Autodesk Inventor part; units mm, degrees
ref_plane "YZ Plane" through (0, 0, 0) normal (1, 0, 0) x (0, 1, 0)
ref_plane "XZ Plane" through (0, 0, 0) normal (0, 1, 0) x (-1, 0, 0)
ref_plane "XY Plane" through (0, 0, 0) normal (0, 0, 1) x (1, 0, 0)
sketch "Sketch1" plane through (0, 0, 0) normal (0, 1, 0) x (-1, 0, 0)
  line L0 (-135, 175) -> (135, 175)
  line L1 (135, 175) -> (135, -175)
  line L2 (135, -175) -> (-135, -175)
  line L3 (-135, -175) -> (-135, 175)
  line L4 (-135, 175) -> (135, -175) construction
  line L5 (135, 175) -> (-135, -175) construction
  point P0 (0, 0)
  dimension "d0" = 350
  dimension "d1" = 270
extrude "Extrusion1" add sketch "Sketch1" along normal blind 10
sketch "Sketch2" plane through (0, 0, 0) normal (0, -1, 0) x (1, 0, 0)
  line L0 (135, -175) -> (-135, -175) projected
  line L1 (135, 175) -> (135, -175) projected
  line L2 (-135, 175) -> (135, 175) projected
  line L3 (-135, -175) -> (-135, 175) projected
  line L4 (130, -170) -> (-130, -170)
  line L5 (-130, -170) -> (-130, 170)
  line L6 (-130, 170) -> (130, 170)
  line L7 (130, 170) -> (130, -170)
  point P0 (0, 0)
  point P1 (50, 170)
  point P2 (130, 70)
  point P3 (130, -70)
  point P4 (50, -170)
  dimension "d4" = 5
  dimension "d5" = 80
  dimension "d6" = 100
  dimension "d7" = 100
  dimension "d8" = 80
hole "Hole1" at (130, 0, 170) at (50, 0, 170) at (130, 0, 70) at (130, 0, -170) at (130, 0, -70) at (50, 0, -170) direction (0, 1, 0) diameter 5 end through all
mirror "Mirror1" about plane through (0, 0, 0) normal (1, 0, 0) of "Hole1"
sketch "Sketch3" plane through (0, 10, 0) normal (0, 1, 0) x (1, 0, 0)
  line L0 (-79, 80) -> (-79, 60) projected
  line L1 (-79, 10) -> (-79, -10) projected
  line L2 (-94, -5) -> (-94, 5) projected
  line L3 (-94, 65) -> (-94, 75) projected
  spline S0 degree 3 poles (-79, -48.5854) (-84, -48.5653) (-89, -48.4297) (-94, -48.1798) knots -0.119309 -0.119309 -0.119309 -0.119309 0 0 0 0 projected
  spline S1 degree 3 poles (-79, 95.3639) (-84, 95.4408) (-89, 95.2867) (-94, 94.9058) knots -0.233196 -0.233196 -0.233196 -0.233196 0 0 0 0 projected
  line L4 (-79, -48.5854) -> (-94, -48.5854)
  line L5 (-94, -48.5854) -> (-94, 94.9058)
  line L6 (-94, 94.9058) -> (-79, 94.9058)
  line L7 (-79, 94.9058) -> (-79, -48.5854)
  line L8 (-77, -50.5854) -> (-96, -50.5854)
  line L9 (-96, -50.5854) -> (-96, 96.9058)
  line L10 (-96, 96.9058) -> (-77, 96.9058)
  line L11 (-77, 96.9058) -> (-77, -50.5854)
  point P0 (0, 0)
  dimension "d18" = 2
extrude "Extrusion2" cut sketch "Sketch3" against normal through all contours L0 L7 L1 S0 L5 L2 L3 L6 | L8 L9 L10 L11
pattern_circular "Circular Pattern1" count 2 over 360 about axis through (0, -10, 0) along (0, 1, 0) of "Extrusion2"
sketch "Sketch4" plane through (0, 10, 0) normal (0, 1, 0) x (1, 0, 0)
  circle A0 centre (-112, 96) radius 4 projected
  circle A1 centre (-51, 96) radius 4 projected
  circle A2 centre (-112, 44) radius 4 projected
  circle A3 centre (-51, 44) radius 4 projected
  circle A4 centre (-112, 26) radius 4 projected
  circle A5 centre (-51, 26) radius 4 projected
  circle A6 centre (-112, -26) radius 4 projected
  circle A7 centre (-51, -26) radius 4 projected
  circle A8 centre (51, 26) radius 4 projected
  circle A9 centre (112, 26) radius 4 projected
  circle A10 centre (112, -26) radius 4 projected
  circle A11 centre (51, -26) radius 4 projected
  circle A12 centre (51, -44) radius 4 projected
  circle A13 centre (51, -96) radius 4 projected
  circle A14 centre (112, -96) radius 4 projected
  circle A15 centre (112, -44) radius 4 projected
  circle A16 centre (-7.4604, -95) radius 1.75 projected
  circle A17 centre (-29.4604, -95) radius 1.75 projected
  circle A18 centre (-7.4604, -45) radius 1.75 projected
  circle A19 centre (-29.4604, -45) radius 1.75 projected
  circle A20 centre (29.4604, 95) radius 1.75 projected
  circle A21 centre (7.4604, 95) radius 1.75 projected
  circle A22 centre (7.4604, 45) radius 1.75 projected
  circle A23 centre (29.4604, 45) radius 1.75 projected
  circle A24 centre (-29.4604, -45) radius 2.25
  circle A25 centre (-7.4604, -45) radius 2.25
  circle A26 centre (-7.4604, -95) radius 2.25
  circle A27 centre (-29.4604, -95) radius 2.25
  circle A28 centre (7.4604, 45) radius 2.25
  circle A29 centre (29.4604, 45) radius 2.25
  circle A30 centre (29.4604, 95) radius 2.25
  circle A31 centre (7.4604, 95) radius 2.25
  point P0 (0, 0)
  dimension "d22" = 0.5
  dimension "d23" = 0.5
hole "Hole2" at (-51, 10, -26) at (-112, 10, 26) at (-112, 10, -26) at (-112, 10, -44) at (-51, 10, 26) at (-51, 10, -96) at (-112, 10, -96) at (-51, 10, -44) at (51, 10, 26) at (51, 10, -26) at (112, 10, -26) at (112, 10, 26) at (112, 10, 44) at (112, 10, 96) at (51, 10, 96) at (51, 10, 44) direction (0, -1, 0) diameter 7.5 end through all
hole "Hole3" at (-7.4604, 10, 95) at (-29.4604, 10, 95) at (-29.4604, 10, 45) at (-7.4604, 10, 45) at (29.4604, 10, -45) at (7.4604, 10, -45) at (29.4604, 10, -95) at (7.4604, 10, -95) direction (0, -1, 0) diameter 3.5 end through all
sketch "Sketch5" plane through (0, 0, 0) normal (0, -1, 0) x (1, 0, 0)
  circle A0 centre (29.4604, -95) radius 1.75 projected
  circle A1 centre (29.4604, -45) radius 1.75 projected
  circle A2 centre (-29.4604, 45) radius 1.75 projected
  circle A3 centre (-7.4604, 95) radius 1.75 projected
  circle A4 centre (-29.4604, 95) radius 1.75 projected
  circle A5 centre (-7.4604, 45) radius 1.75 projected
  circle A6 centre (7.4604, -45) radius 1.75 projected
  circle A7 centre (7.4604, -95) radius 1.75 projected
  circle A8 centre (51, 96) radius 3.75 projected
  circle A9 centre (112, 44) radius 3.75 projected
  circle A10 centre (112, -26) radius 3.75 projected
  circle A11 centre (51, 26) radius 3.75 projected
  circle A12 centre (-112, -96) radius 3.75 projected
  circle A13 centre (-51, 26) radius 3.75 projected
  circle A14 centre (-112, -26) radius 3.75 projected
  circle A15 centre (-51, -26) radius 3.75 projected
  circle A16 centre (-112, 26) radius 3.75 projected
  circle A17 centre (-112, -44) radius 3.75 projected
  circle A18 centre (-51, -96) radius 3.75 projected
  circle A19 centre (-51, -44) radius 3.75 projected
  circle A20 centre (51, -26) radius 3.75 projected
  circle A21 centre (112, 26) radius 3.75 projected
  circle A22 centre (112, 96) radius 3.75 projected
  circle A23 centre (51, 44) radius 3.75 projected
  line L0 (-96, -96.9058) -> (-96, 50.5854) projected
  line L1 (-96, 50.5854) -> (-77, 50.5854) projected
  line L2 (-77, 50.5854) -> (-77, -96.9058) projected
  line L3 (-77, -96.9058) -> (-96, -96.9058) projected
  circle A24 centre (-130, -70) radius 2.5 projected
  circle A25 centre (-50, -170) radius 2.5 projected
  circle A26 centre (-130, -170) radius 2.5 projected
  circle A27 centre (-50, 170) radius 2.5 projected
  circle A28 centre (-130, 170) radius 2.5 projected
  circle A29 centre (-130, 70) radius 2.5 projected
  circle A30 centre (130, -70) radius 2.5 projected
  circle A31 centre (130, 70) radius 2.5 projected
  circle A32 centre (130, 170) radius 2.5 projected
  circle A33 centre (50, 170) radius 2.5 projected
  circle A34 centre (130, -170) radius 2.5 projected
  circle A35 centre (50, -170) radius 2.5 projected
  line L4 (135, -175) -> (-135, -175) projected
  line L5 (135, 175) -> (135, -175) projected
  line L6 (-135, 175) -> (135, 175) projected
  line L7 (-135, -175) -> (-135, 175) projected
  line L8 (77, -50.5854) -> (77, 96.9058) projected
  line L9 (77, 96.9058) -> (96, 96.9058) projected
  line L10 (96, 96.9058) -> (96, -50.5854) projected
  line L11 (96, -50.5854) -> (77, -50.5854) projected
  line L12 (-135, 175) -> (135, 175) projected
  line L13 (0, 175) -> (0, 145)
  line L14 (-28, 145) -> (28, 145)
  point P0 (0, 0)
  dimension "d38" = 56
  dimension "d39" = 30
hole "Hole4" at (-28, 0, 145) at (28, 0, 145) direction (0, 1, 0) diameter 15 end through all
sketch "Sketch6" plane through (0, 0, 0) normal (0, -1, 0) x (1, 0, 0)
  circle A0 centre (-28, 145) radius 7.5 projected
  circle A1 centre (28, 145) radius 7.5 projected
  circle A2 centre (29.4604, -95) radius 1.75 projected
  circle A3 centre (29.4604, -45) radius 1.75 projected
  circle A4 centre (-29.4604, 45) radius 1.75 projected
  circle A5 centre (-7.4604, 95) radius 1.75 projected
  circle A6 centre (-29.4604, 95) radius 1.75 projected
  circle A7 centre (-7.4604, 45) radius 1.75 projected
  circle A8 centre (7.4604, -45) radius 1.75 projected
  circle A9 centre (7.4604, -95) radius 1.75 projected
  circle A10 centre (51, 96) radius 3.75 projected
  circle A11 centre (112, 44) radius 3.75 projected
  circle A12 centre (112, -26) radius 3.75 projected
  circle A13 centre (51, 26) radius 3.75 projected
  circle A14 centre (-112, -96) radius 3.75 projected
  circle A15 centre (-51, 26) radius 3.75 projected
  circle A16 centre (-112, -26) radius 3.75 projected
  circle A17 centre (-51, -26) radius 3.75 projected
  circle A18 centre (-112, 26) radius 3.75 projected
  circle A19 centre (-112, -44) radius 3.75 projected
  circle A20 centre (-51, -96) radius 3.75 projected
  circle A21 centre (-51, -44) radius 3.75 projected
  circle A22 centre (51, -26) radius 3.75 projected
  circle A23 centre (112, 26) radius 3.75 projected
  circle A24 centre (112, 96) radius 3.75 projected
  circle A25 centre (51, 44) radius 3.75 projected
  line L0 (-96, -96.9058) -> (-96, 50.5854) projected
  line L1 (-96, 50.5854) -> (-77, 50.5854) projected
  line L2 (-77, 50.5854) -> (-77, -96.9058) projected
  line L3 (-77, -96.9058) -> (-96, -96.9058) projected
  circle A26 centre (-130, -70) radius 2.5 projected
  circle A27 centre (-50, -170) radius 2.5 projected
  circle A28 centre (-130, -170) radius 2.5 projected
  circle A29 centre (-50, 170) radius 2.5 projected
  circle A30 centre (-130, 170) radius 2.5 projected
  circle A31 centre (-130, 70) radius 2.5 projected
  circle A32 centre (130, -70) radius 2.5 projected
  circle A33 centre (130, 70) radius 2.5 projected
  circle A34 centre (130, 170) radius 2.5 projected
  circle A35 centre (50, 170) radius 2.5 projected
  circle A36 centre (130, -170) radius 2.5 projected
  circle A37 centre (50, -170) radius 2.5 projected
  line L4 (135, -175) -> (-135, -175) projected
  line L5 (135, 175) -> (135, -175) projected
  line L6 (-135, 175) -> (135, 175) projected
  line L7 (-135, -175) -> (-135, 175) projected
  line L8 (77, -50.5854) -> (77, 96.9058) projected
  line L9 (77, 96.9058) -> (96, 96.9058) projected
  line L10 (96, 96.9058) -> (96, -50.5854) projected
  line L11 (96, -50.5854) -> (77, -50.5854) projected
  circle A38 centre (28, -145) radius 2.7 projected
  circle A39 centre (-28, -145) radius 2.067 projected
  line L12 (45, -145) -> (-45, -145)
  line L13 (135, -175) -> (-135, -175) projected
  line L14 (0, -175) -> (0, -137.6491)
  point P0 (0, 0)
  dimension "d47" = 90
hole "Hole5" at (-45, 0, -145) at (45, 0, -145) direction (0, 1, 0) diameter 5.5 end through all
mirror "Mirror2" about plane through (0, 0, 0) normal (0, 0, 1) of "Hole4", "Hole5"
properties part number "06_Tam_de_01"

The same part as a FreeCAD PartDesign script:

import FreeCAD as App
import Part
import Sketcher
Q = App.Units.Quantity


def add_polygon(sketch, points):
    """Adds a closed chain of lines whose ends are joined by coincident constraints."""
    first, n = sketch.GeometryCount, len(points)
    for a, b in zip(points, points[1:] + points[:1]):
        sketch.addGeometry(Part.LineSegment(App.Vector(*a, 0), App.Vector(*b, 0)), False)
    for i in range(n):
        sketch.addConstraint(Sketcher.Constraint("Coincident", first + i, 2, first + (i + 1) % n, 1))

doc = App.newDocument("Part")
body = doc.addObject("PartDesign::Body", "Body")
body.AllowCompound = True

# Sketch on XZ plane
sketch1 = body.newObject("Sketcher::SketchObject", "Sketch")
sketch1.AttachmentSupport = (doc.getObject("XZ_Plane"), [""])
sketch1.MapMode = "FlatFace"
add_polygon(sketch1, [(-135, 175), (135, 175), (135, -175), (-135, -175)])  # lines 0-3
sketch1.addConstraint(Sketcher.Constraint("Horizontal", 0))
sketch1.addConstraint(Sketcher.Constraint("Vertical", 1))
sketch1.addConstraint(Sketcher.Constraint("Horizontal", 2))
sketch1.addConstraint(Sketcher.Constraint("Vertical", 3))
sketch1.addConstraint(Sketcher.Constraint("Symmetric", 0, 2, 2, 2, -1, 1))
sketch1.addConstraint(Sketcher.Constraint("DistanceX", 0, 1, 0, 2, Q("270 mm")))
sketch1.addConstraint(Sketcher.Constraint("DistanceY", 1, 2, 1, 1, Q("350 mm")))
pad1 = body.newObject("PartDesign::Pad", "Pad")
pad1.Profile = sketch1
pad1.Length = 10
pad1.Reversed = True

# Sketch on XZ plane
sketch2 = body.newObject("Sketcher::SketchObject", "Sketch001")
sketch2.AttachmentSupport = (doc.getObject("XZ_Plane"), [""])
sketch2.MapMode = "FlatFace"
sketch2.addGeometry(Part.Circle(App.Vector(130, 170, 0), App.Vector(0, 0, 1), 2.5), False)
sketch2.addGeometry(Part.Circle(App.Vector(50, 170, 0), App.Vector(0, 0, 1), 2.5), False)
sketch2.addGeometry(Part.Circle(App.Vector(130, 70, 0), App.Vector(0, 0, 1), 2.5), False)
sketch2.addGeometry(Part.Circle(App.Vector(130, -170, 0), App.Vector(0, 0, 1), 2.5), False)
sketch2.addGeometry(Part.Circle(App.Vector(130, -70, 0), App.Vector(0, 0, 1), 2.5), False)
sketch2.addGeometry(Part.Circle(App.Vector(50, -170, 0), App.Vector(0, 0, 1), 2.5), False)
sketch2.addConstraint(Sketcher.Constraint("Equal", 0, 1))
sketch2.addConstraint(Sketcher.Constraint("Equal", 1, 2))
sketch2.addConstraint(Sketcher.Constraint("Equal", 2, 3))
sketch2.addConstraint(Sketcher.Constraint("Equal", 3, 4))
sketch2.addConstraint(Sketcher.Constraint("Equal", 4, 5))
sketch2.addConstraint(Sketcher.Constraint("Symmetric", 0, 3, 3, 3, -1))
sketch2.addConstraint(Sketcher.Constraint("Symmetric", 2, 3, 4, 3, -1))
sketch2.addConstraint(Sketcher.Constraint("Symmetric", 1, 3, 5, 3, -1))
sketch2.addConstraint(Sketcher.Constraint("Horizontal", 0, 3, 1, 3))
sketch2.addConstraint(Sketcher.Constraint("Vertical", 0, 3, 2, 3))
sketch2.addConstraint(Sketcher.Constraint("Diameter", 0, Q("5 mm")))
sketch2.addConstraint(Sketcher.Constraint("DistanceX", -1, 1, 0, 3, Q("130 mm")))
sketch2.addConstraint(Sketcher.Constraint("DistanceY", -1, 1, 0, 3, Q("170 mm")))
sketch2.addConstraint(Sketcher.Constraint("DistanceX", -1, 1, 1, 3, Q("50 mm")))
sketch2.addConstraint(Sketcher.Constraint("DistanceY", -1, 1, 2, 3, Q("70 mm")))
doc.recompute()
hole = body.newObject("PartDesign::Hole", "Hole")
hole.Profile = sketch2
hole.ThreadType = "None"
hole.Diameter = 5
hole.DepthType = "ThroughAll"
doc.recompute()

mirrored = body.newObject("PartDesign::Mirrored", "Mirrored")
mirrored.Originals = [hole]
mirrored.MirrorPlane = (doc.getObject("YZ_Plane"), [""])
body.Tip = mirrored

# Sketch on XZ plane
sketch3 = body.newObject("Sketcher::SketchObject", "Sketch002")
sketch3.AttachmentSupport = (doc.getObject("XZ_Plane"), [""])
sketch3.MapMode = "FlatFace"
sketch3.AttachmentOffset = App.Placement(App.Vector(0, 0, -10), App.Rotation())
add_polygon(sketch3, [(-96, 50.5854), (-77, 50.5854), (-77, -96.9058), (-96, -96.9058)])  # lines 0-3
sketch3.addGeometry(Part.BSplineCurve([App.Vector(-79, 48.5854, 0), App.Vector(-84, 48.5653, 0), App.Vector(-89, 48.4297, 0), App.Vector(-94, 48.1798, 0)], [4, 4], [-0.119309, 0], False, 3, [1, 1, 1, 1], False), False)  # 4
sketch3.addGeometry(Part.LineSegment(App.Vector(-79, 48.5854, 0), App.Vector(-94, 48.5854, 0)), False)  # 5
sketch3.addGeometry(Part.LineSegment(App.Vector(-94, 48.5854, 0), App.Vector(-94, 48.1798, 0)), False)  # 6
sketch3.addConstraint(Sketcher.Constraint("Block", 4))
sketch3.addConstraint(Sketcher.Constraint("Coincident", 4, 1, 5, 1))
sketch3.addConstraint(Sketcher.Constraint("Coincident", 5, 2, 6, 1))
sketch3.addConstraint(Sketcher.Constraint("Coincident", 6, 2, 4, 2))
sketch3.addConstraint(Sketcher.Constraint("Horizontal", 0))
sketch3.addConstraint(Sketcher.Constraint("Vertical", 1))
sketch3.addConstraint(Sketcher.Constraint("Horizontal", 2))
sketch3.addConstraint(Sketcher.Constraint("Vertical", 3))
sketch3.addConstraint(Sketcher.Constraint("Horizontal", 5))
sketch3.addConstraint(Sketcher.Constraint("Vertical", 6))
sketch3.addConstraint(Sketcher.Constraint("DistanceX", 3, 2, 5, 2, Q("2 mm")))
sketch3.addConstraint(Sketcher.Constraint("DistanceY", 5, 2, 3, 2, Q("2 mm")))
sketch3.addConstraint(Sketcher.Constraint("DistanceX", 0, 1, 0, 2, Q("19 mm")))
sketch3.addConstraint(Sketcher.Constraint("DistanceY", 1, 2, 1, 1, Q("147.4912 mm")))
pocket1 = body.newObject("PartDesign::Pocket", "Pocket")
pocket1.Profile = sketch3
pocket1.Type = "ThroughAll"
pocket1.Reversed = True
doc.recompute()

polarpattern = body.newObject("PartDesign::PolarPattern", "PolarPattern")
polarpattern.Originals = [pocket1]
polarpattern.Axis = (doc.getObject("Y_Axis"), [""])
polarpattern.Angle = 360
polarpattern.Occurrences = 2
body.Tip = polarpattern

# Sketch on XZ plane
sketch4 = body.newObject("Sketcher::SketchObject", "Sketch003")
sketch4.AttachmentSupport = (doc.getObject("XZ_Plane"), [""])
sketch4.MapMode = "FlatFace"
sketch4.AttachmentOffset = App.Placement(App.Vector(0, 0, -10), App.Rotation())
sketch4.addGeometry(Part.Circle(App.Vector(-51, -26, 0), App.Vector(0, 0, 1), 3.8), False)
sketch4.addGeometry(Part.Circle(App.Vector(-112, 26, 0), App.Vector(0, 0, 1), 3.8), False)
sketch4.addGeometry(Part.Circle(App.Vector(-112, -26, 0), App.Vector(0, 0, 1), 3.8), False)
sketch4.addGeometry(Part.Circle(App.Vector(-112, -44, 0), App.Vector(0, 0, 1), 3.8), False)
sketch4.addGeometry(Part.Circle(App.Vector(-51, 26, 0), App.Vector(0, 0, 1), 3.8), False)
sketch4.addGeometry(Part.Circle(App.Vector(-51, -96, 0), App.Vector(0, 0, 1), 3.8), False)
sketch4.addGeometry(Part.Circle(App.Vector(-112, -96, 0), App.Vector(0, 0, 1), 3.8), False)
sketch4.addGeometry(Part.Circle(App.Vector(-51, -44, 0), App.Vector(0, 0, 1), 3.8), False)
sketch4.addGeometry(Part.Circle(App.Vector(51, 26, 0), App.Vector(0, 0, 1), 3.8), False)
sketch4.addGeometry(Part.Circle(App.Vector(51, -26, 0), App.Vector(0, 0, 1), 3.8), False)
sketch4.addGeometry(Part.Circle(App.Vector(112, -26, 0), App.Vector(0, 0, 1), 3.8), False)
sketch4.addGeometry(Part.Circle(App.Vector(112, 26, 0), App.Vector(0, 0, 1), 3.8), False)
sketch4.addGeometry(Part.Circle(App.Vector(112, 44, 0), App.Vector(0, 0, 1), 3.8), False)
sketch4.addGeometry(Part.Circle(App.Vector(112, 96, 0), App.Vector(0, 0, 1), 3.8), False)
sketch4.addGeometry(Part.Circle(App.Vector(51, 96, 0), App.Vector(0, 0, 1), 3.8), False)
sketch4.addGeometry(Part.Circle(App.Vector(51, 44, 0), App.Vector(0, 0, 1), 3.8), False)
sketch4.addConstraint(Sketcher.Constraint("Equal", 0, 1))
sketch4.addConstraint(Sketcher.Constraint("Equal", 1, 2))
sketch4.addConstraint(Sketcher.Constraint("Equal", 2, 3))
sketch4.addConstraint(Sketcher.Constraint("Equal", 3, 4))
sketch4.addConstraint(Sketcher.Constraint("Equal", 4, 5))
sketch4.addConstraint(Sketcher.Constraint("Equal", 5, 6))
sketch4.addConstraint(Sketcher.Constraint("Equal", 6, 7))
sketch4.addConstraint(Sketcher.Constraint("Equal", 7, 8))
sketch4.addConstraint(Sketcher.Constraint("Equal", 8, 9))
sketch4.addConstraint(Sketcher.Constraint("Equal", 9, 10))
sketch4.addConstraint(Sketcher.Constraint("Equal", 10, 11))
sketch4.addConstraint(Sketcher.Constraint("Equal", 11, 12))
sketch4.addConstraint(Sketcher.Constraint("Equal", 12, 13))
sketch4.addConstraint(Sketcher.Constraint("Equal", 13, 14))
sketch4.addConstraint(Sketcher.Constraint("Equal", 14, 15))
sketch4.addConstraint(Sketcher.Constraint("Symmetric", 0, 3, 8, 3, -1, 1))
sketch4.addConstraint(Sketcher.Constraint("Symmetric", 4, 3, 9, 3, -1, 1))
sketch4.addConstraint(Sketcher.Constraint("Symmetric", 1, 3, 10, 3, -1, 1))
sketch4.addConstraint(Sketcher.Constraint("Symmetric", 2, 3, 11, 3, -1, 1))
sketch4.addConstraint(Sketcher.Constraint("Symmetric", 3, 3, 12, 3, -1, 1))
sketch4.addConstraint(Sketcher.Constraint("Symmetric", 6, 3, 13, 3, -1, 1))
sketch4.addConstraint(Sketcher.Constraint("Symmetric", 5, 3, 14, 3, -1, 1))
sketch4.addConstraint(Sketcher.Constraint("Symmetric", 7, 3, 15, 3, -1, 1))
sketch4.addConstraint(Sketcher.Constraint("Symmetric", 4, 3, 8, 3, -2))
sketch4.addConstraint(Sketcher.Constraint("Symmetric", 2, 3, 10, 3, -2))
sketch4.addConstraint(Sketcher.Constraint("Horizontal", 0, 3, 2, 3))
sketch4.addConstraint(Sketcher.Constraint("Horizontal", 5, 3, 6, 3))
sketch4.addConstraint(Sketcher.Constraint("Horizontal", 3, 3, 7, 3))
sketch4.addConstraint(Sketcher.Constraint("Vertical", 2, 3, 3, 3))
sketch4.addConstraint(Sketcher.Constraint("Vertical", 4, 3, 5, 3))
sketch4.addConstraint(Sketcher.Constraint("Vertical", 3, 3, 6, 3))
sketch4.addConstraint(Sketcher.Constraint("Vertical", 5, 3, 7, 3))
sketch4.addConstraint(Sketcher.Constraint("Diameter", 0, Q("7.5 mm")))
sketch4.addConstraint(Sketcher.Constraint("DistanceX", 0, 3, -1, 1, Q("51 mm")))
sketch4.addConstraint(Sketcher.Constraint("DistanceY", 0, 3, -1, 1, Q("26 mm")))
sketch4.addConstraint(Sketcher.Constraint("DistanceX", 1, 3, -1, 1, Q("112 mm")))
sketch4.addConstraint(Sketcher.Constraint("DistanceY", 3, 3, -1, 1, Q("44 mm")))
sketch4.addConstraint(Sketcher.Constraint("DistanceY", 5, 3, -1, 1, Q("96 mm")))
doc.recompute()
hole2 = body.newObject("PartDesign::Hole", "Hole001")
hole2.Profile = sketch4
hole2.ThreadType = "None"
hole2.Diameter = 7.5
hole2.DepthType = "ThroughAll"
hole2.Reversed = True

# Sketch on XZ plane
sketch5 = body.newObject("Sketcher::SketchObject", "Sketch004")
sketch5.AttachmentSupport = (doc.getObject("XZ_Plane"), [""])
sketch5.MapMode = "FlatFace"
sketch5.AttachmentOffset = App.Placement(App.Vector(0, 0, -10), App.Rotation())
sketch5.addGeometry(Part.Circle(App.Vector(-7.5, 95, 0), App.Vector(0, 0, 1), 1.8), False)
sketch5.addGeometry(Part.Circle(App.Vector(-29.5, 95, 0), App.Vector(0, 0, 1), 1.8), False)
sketch5.addGeometry(Part.Circle(App.Vector(-29.5, 45, 0), App.Vector(0, 0, 1), 1.8), False)
sketch5.addGeometry(Part.Circle(App.Vector(-7.5, 45, 0), App.Vector(0, 0, 1), 1.8), False)
sketch5.addGeometry(Part.Circle(App.Vector(29.5, -45, 0), App.Vector(0, 0, 1), 1.8), False)
sketch5.addGeometry(Part.Circle(App.Vector(7.5, -45, 0), App.Vector(0, 0, 1), 1.8), False)
sketch5.addGeometry(Part.Circle(App.Vector(29.5, -95, 0), App.Vector(0, 0, 1), 1.8), False)
sketch5.addGeometry(Part.Circle(App.Vector(7.5, -95, 0), App.Vector(0, 0, 1), 1.8), False)
sketch5.addConstraint(Sketcher.Constraint("Equal", 0, 1))
sketch5.addConstraint(Sketcher.Constraint("Equal", 1, 2))
sketch5.addConstraint(Sketcher.Constraint("Equal", 2, 3))
sketch5.addConstraint(Sketcher.Constraint("Equal", 3, 4))
sketch5.addConstraint(Sketcher.Constraint("Equal", 4, 5))
sketch5.addConstraint(Sketcher.Constraint("Equal", 5, 6))
sketch5.addConstraint(Sketcher.Constraint("Equal", 6, 7))
sketch5.addConstraint(Sketcher.Constraint("Symmetric", 2, 3, 4, 3, -1, 1))
sketch5.addConstraint(Sketcher.Constraint("Symmetric", 3, 3, 5, 3, -1, 1))
sketch5.addConstraint(Sketcher.Constraint("Symmetric", 1, 3, 6, 3, -1, 1))
sketch5.addConstraint(Sketcher.Constraint("Symmetric", 0, 3, 7, 3, -1, 1))
sketch5.addConstraint(Sketcher.Constraint("Horizontal", 0, 3, 1, 3))
sketch5.addConstraint(Sketcher.Constraint("Horizontal", 2, 3, 3, 3))
sketch5.addConstraint(Sketcher.Constraint("Vertical", 1, 3, 2, 3))
sketch5.addConstraint(Sketcher.Constraint("Vertical", 0, 3, 3, 3))
sketch5.addConstraint(Sketcher.Constraint("Diameter", 0, Q("3.5 mm")))
sketch5.addConstraint(Sketcher.Constraint("DistanceY", -1, 1, 0, 3, Q("95 mm")))
sketch5.addConstraint(Sketcher.Constraint("DistanceY", -1, 1, 2, 3, Q("45 mm")))
sketch5.addConstraint(Sketcher.Constraint("DistanceX", 1, 3, 0, 3, Q("22 mm")))
sketch5.addConstraint(Sketcher.Constraint("DistanceX", 0, 3, -1, 1, Q("7.4604 mm")))
doc.recompute()
hole3 = body.newObject("PartDesign::Hole", "Hole002")
hole3.Profile = sketch5
hole3.ThreadType = "None"
hole3.Diameter = 3.5
hole3.DepthType = "ThroughAll"
hole3.Reversed = True

# Sketch on XZ plane
sketch6 = body.newObject("Sketcher::SketchObject", "Sketch005")
sketch6.AttachmentSupport = (doc.getObject("XZ_Plane"), [""])
sketch6.MapMode = "FlatFace"
sketch6.addGeometry(Part.Circle(App.Vector(-28, 145, 0), App.Vector(0, 0, 1), 8), False)
sketch6.addGeometry(Part.Circle(App.Vector(28, 145, 0), App.Vector(0, 0, 1), 8), False)
sketch6.addConstraint(Sketcher.Constraint("Equal", 0, 1))
sketch6.addConstraint(Sketcher.Constraint("Symmetric", 0, 3, 1, 3, -2))
sketch6.addConstraint(Sketcher.Constraint("Diameter", 0, Q("15 mm")))
sketch6.addConstraint(Sketcher.Constraint("DistanceX", 0, 3, -1, 1, Q("28 mm")))
sketch6.addConstraint(Sketcher.Constraint("DistanceY", -1, 1, 0, 3, Q("145 mm")))
doc.recompute()
hole4 = body.newObject("PartDesign::Hole", "Hole003")
hole4.Profile = sketch6
hole4.ThreadType = "None"
hole4.Diameter = 15
hole4.DepthType = "ThroughAll"

# Sketch on XZ plane
sketch7 = body.newObject("Sketcher::SketchObject", "Sketch006")
sketch7.AttachmentSupport = (doc.getObject("XZ_Plane"), [""])
sketch7.MapMode = "FlatFace"
sketch7.addGeometry(Part.Circle(App.Vector(-45, -145, 0), App.Vector(0, 0, 1), 2.8), False)
sketch7.addGeometry(Part.Circle(App.Vector(45, -145, 0), App.Vector(0, 0, 1), 2.8), False)
sketch7.addConstraint(Sketcher.Constraint("Equal", 0, 1))
sketch7.addConstraint(Sketcher.Constraint("Symmetric", 0, 3, 1, 3, -2))
sketch7.addConstraint(Sketcher.Constraint("Diameter", 0, Q("5.5 mm")))
sketch7.addConstraint(Sketcher.Constraint("DistanceX", 0, 3, -1, 1, Q("45 mm")))
sketch7.addConstraint(Sketcher.Constraint("DistanceY", 0, 3, -1, 1, Q("145 mm")))
doc.recompute()
hole5 = body.newObject("PartDesign::Hole", "Hole004")
hole5.Profile = sketch7
hole5.ThreadType = "None"
hole5.Diameter = 5.5
hole5.DepthType = "ThroughAll"
doc.recompute()

mirrored2 = body.newObject("PartDesign::Mirrored", "Mirrored001")
mirrored2.Originals = [hole4, hole5]
mirrored2.MirrorPlane = (doc.getObject("XY_Plane"), [""])
body.Tip = mirrored2

doc.recompute()
